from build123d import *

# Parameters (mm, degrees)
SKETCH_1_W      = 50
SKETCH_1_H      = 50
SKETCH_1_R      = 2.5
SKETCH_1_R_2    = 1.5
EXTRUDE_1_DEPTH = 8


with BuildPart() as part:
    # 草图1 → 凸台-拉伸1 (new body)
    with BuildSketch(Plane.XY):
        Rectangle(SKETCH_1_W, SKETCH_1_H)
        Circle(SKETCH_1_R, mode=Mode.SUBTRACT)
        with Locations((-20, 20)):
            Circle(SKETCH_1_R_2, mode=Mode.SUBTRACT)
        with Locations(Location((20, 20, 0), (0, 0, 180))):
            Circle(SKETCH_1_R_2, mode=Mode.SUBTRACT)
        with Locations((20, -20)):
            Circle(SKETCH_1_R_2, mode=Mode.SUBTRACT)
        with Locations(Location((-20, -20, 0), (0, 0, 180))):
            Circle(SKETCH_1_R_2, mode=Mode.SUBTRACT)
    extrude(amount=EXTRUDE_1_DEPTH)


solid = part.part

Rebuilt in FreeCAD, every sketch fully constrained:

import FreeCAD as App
import Part
import Sketcher

V = App.Vector
Q = App.Units.Quantity


def add_polygon(sketch, points):
    """Adds a closed chain of lines whose ends are joined by coincident constraints."""
    first, n = sketch.GeometryCount, len(points)
    for a, b in zip(points, points[1:] + points[:1]):
        sketch.addGeometry(Part.LineSegment(App.Vector(*a, 0), App.Vector(*b, 0)), False)
    for i in range(n):
        sketch.addConstraint(Sketcher.Constraint("Coincident", first + i, 2, first + (i + 1) % n, 1))

doc = App.newDocument("Part")
body = doc.addObject("PartDesign::Body", "Body")

# Sketch on XY plane
sketch1 = body.newObject("Sketcher::SketchObject", "Sketch")
sketch1.AttachmentSupport = (doc.getObject("XY_Plane"), [""])
sketch1.MapMode = "FlatFace"
add_polygon(sketch1, [(-25, 25), (-25, -25), (25, -25), (25, 25)])  # lines 0-3
sketch1.addGeometry(Part.Circle(V(-20, -20, 0), V(0, 0, 1), 1.5), False)  # 4
sketch1.addGeometry(Part.Circle(V(20, -20, 0), V(0, 0, 1), 1.5), False)  # 5
sketch1.addGeometry(Part.Circle(V(-20, 20, 0), V(0, 0, 1), 1.5), False)  # 6
sketch1.addGeometry(Part.Circle(V(0, 0, 0), V(0, 0, 1), 2.5), False)  # 7
sketch1.addGeometry(Part.Circle(V(20, 20, 0), V(0, 0, 1), 1.5), False)  # 8
sketch1.addConstraint(Sketcher.Constraint("Vertical", 0))
sketch1.addConstraint(Sketcher.Constraint("Horizontal", 1))
sketch1.addConstraint(Sketcher.Constraint("Vertical", 2))
sketch1.addConstraint(Sketcher.Constraint("Horizontal", 3))
sketch1.addConstraint(Sketcher.Constraint("Coincident", 7, 3, -1, 1))
sketch1.addConstraint(Sketcher.Constraint("Equal", 4, 5))
sketch1.addConstraint(Sketcher.Constraint("Equal", 5, 6))
sketch1.addConstraint(Sketcher.Constraint("Equal", 6, 8))
sketch1.addConstraint(Sketcher.Constraint("Symmetric", 5, 3, 6, 3, -1, 1))
sketch1.addConstraint(Sketcher.Constraint("Symmetric", 4, 3, 8, 3, -1, 1))
sketch1.addConstraint(Sketcher.Constraint("Symmetric", 0, 2, 2, 2, -1, 1))
sketch1.addConstraint(Sketcher.Constraint("Symmetric", 4, 3, 5, 3, -2))
sketch1.addConstraint(Sketcher.Constraint("Equal", 3, 0))
sketch1.addConstraint(Sketcher.Constraint("Diameter", 4, Q("3 mm")))
sketch1.addConstraint(Sketcher.Constraint("Diameter", 7, Q("5 mm")))
sketch1.addConstraint(Sketcher.Constraint("DistanceX", 1, 1, 1, 2, Q("50 mm")))
sketch1.addConstraint(Sketcher.Constraint("DistanceX", 4, 3, -1, 1, Q("20 mm")))
sketch1.addConstraint(Sketcher.Constraint("DistanceY", 4, 3, -1, 1, Q("20 mm")))
pad1 = body.newObject("PartDesign::Pad", "Pad")
pad1.Profile = sketch1
pad1.Length = 8

doc.recompute()
